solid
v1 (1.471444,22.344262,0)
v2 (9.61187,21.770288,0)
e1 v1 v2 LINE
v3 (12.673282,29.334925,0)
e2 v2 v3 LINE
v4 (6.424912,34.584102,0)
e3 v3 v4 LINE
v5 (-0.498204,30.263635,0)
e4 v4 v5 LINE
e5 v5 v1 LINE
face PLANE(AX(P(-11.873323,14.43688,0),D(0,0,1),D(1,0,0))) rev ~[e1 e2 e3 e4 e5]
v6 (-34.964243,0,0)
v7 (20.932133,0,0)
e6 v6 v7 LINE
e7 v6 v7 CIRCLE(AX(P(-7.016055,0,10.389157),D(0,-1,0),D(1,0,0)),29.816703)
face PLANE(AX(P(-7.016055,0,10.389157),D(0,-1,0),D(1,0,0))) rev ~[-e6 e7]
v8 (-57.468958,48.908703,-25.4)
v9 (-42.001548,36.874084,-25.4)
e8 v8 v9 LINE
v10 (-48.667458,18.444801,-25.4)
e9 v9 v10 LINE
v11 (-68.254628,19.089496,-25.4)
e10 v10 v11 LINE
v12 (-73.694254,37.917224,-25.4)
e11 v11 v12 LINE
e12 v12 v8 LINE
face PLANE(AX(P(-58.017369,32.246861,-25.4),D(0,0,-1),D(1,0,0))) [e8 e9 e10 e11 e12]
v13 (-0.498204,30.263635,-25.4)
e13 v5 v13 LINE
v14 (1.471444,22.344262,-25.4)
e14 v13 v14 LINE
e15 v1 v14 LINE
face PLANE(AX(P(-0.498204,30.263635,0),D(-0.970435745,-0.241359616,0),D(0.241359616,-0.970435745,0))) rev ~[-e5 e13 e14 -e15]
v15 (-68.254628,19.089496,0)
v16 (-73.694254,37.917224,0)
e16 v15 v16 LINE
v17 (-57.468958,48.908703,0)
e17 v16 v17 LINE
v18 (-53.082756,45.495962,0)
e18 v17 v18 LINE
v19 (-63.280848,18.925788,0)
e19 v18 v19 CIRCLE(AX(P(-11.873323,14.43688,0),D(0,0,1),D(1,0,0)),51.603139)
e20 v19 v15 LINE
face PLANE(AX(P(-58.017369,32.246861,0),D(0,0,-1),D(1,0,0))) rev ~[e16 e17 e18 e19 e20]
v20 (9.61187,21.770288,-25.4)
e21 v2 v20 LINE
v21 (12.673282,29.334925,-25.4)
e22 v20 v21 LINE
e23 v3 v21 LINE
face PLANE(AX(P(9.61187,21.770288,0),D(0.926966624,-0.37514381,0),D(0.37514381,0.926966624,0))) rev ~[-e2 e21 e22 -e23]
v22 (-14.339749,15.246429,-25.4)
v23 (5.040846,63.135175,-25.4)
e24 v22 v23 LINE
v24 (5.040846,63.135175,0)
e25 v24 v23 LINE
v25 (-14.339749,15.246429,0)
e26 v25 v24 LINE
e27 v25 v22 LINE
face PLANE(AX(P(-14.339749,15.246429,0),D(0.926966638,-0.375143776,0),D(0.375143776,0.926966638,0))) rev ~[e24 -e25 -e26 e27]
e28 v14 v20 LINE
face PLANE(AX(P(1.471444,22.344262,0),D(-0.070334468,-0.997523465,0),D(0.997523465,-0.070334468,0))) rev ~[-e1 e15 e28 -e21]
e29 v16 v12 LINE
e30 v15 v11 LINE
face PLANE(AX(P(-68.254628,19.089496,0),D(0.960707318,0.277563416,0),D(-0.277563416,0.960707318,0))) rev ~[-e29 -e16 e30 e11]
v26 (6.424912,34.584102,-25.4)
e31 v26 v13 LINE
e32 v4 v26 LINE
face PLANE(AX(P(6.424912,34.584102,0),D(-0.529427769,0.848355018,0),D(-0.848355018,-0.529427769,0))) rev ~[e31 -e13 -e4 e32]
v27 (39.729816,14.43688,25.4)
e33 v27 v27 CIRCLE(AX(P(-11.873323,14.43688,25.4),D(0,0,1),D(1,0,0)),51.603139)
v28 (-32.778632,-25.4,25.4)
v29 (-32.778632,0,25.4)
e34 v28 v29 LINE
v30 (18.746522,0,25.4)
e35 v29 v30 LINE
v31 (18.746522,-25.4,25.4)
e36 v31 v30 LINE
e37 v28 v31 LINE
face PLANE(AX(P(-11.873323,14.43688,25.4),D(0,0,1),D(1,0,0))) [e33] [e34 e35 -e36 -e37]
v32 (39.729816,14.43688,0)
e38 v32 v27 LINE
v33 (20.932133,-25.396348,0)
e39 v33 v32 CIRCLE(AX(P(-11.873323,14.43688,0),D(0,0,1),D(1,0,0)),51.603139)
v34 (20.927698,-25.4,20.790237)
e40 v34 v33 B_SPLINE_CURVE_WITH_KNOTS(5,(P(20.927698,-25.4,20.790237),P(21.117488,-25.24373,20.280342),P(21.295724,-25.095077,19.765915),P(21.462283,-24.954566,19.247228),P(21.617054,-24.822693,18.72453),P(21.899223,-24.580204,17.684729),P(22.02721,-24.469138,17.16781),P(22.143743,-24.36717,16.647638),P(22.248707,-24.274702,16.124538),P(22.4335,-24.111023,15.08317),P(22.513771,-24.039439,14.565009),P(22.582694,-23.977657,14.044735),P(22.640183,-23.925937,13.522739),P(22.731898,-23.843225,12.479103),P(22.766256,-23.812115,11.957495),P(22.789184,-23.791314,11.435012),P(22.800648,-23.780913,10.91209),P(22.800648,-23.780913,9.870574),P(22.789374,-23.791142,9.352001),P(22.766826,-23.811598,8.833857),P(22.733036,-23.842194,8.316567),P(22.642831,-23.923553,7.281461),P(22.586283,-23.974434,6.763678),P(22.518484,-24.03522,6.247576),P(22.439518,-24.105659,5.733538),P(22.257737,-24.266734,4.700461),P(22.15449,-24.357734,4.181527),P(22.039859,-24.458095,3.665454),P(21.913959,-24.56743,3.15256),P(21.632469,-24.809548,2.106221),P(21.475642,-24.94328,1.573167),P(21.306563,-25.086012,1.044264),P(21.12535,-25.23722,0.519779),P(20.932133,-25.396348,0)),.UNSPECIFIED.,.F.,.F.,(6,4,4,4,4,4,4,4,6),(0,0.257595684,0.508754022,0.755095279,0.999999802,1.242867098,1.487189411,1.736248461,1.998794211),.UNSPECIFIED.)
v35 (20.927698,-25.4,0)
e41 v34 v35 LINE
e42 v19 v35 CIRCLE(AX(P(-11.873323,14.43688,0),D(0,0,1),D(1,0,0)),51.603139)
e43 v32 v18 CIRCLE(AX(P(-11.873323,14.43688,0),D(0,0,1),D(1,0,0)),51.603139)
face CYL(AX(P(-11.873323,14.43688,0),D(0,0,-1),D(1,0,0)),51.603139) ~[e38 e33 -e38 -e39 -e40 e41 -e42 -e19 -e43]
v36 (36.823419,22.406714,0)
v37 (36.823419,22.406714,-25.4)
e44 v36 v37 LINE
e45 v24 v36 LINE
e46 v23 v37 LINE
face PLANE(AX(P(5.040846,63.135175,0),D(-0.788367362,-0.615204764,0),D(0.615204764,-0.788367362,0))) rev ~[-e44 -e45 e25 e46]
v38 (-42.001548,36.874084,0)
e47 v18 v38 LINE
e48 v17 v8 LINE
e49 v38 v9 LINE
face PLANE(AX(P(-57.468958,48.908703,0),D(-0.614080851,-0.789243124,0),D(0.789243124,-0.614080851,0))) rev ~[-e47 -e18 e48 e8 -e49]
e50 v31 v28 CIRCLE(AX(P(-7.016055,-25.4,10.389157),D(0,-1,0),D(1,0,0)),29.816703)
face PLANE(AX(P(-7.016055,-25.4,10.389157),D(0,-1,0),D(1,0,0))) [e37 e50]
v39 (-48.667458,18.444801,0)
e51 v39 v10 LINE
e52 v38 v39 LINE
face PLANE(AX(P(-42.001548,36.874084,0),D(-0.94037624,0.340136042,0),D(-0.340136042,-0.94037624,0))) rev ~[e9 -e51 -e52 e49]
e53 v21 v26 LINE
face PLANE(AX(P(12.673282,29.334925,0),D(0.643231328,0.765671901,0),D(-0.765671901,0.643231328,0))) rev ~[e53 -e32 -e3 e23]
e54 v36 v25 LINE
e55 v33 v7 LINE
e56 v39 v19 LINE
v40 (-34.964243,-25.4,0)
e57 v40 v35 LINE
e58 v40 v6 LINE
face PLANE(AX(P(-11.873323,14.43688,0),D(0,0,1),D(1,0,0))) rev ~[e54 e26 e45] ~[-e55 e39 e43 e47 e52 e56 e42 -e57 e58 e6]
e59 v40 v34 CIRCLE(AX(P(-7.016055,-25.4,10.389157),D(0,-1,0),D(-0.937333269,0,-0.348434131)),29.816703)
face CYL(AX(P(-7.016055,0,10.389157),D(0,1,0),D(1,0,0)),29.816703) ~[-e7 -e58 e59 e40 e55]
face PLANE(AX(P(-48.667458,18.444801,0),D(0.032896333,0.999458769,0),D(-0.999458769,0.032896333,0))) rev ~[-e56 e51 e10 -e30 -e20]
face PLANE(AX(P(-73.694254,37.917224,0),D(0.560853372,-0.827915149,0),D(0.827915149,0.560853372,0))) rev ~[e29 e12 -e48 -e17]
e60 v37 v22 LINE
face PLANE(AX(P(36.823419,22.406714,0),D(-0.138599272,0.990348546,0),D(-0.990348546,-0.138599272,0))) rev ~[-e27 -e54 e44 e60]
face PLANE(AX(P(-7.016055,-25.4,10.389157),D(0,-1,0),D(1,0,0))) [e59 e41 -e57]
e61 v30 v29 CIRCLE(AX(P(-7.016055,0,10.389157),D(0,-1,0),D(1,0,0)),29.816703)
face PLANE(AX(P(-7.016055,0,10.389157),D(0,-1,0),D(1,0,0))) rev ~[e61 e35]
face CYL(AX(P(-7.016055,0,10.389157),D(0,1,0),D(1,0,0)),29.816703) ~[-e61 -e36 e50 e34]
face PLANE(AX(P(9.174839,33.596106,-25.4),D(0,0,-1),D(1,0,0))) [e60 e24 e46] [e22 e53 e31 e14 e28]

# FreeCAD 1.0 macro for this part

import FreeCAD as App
import Part
import Sketcher
Q = App.Units.Quantity


def add_polygon(sketch, points):
    """Adds a closed chain of lines whose ends are joined by coincident constraints."""
    first, n = sketch.GeometryCount, len(points)
    for a, b in zip(points, points[1:] + points[:1]):
        sketch.addGeometry(Part.LineSegment(App.Vector(*a, 0), App.Vector(*b, 0)), False)
    for i in range(n):
        sketch.addConstraint(Sketcher.Constraint("Coincident", first + i, 2, first + (i + 1) % n, 1))

doc = App.newDocument("Part")
body = doc.addObject("PartDesign::Body", "Body")

sketch1 = body.newObject("Sketcher::SketchObject", "Sketch")
sketch1.AttachmentSupport = (doc.getObject("XY_Plane"), [""])
sketch1.MapMode = "FlatFace"
sketch1.addGeometry(Part.Circle(App.Vector(-12, 14, 0), App.Vector(0, 0, 1), 52), False)
sketch1.addConstraint([
    Sketcher.Constraint("Diameter", 0, Q("103.206278 mm")),
    Sketcher.Constraint("DistanceY", -1, 1, 0, 3, Q("14.43688 mm")),
    Sketcher.Constraint("DistanceX", 0, 3, -1, 1, Q("11.873323 mm")),
])
pad1 = body.newObject("PartDesign::Pad", "Pad")
pad1.Profile = sketch1
pad1.Length = Q("1 in")

sketch2 = body.newObject("Sketcher::SketchObject", "Sketch001")
sketch2.AttachmentSupport = (doc.getObject("XZ_Plane"), [""])
sketch2.MapMode = "FlatFace"
sketch2.addGeometry(Part.Circle(App.Vector(-7, 10, 0), App.Vector(0, 0, 1), 30), False)
sketch2.addConstraint([
    Sketcher.Constraint("Diameter", 0, Q("59.633406 mm")),
    Sketcher.Constraint("DistanceX", 0, 3, -1, 1, Q("7.016055 mm")),
    Sketcher.Constraint("DistanceY", -1, 1, 0, 3, Q("10.389157 mm")),
])
pad2 = body.newObject("PartDesign::Pad", "Pad001")
pad2.Profile = sketch2
pad2.Length = Q("1 in")

sketch3 = body.newObject("Sketcher::SketchObject", "Sketch002")
sketch3.AttachmentSupport = (doc.getObject("XY_Plane"), [""])
sketch3.MapMode = "FlatFace"
add_polygon(sketch3, [(-42, 37), (-49, 18), (-68, 19), (-74, 38), (-57, 49)])
add_polygon(sketch3, [(5, 63), (37, 22), (-14, 15)])
add_polygon(sketch3, [(0, 30), (1, 22), (10, 22), (13, 29), (6, 35)])
sketch3.addConstraint([
    Sketcher.Constraint("Parallel", 7, 10),
    Sketcher.Constraint("Equal", 0, 1),
    Sketcher.Constraint("Equal", 1, 2),
    Sketcher.Constraint("Equal", 2, 3),
    Sketcher.Constraint("Equal", 3, 4),
    Sketcher.Constraint("Equal", 5, 6),
    Sketcher.Constraint("Equal", 6, 7),
    Sketcher.Constraint("Equal", 8, 9),
    Sketcher.Constraint("Equal", 9, 10),
    Sketcher.Constraint("Equal", 10, 11),
    Sketcher.Constraint("Equal", 11, 12),
    Sketcher.Constraint("DistanceX", 0, 2, 7, 2, Q("2.1145002 in")),
    Sketcher.Constraint("DistanceY", -1, 1, 0, 2, Q("18.444801 mm")),
    Sketcher.Constraint("DistanceX", 3, 2, 0, 2, Q("8.8015 mm")),
    Sketcher.Constraint("DistanceX", 4, 2, 6, 2, Q("27.661799 mm")),
    Sketcher.Constraint("Distance", 5, Q("51.66178 mm")),
    Sketcher.Constraint("DistanceX", 0, 2, -1, 1, Q("48.667458 mm")),
    Sketcher.Constraint("DistanceX", -1, 1, 5, 2, Q("36.823419 mm")),
    Sketcher.Constraint("DistanceY", -1, 1, 6, 2, Q("15.246429 mm")),
    Sketcher.Constraint("DistanceX", -1, 1, 9, 2, Q("9.61187 mm")),
    Sketcher.Constraint("DistanceY", -1, 1, 9, 2, Q("21.770288 mm")),
    Sketcher.Constraint("DistanceX", 1, 2, 0, 2, Q("19.58717 mm")),
    Sketcher.Constraint("DistanceY", 2, 2, 3, 2, Q("10.991479 mm")),
    Sketcher.Constraint("DistanceX", 4, 2, 8, 2, Q("43.472992 mm")),
    Sketcher.Constraint("DistanceY", 0, 2, 8, 2, Q("3.899461 mm")),
    Sketcher.Constraint("DistanceX", 11, 2, 10, 2, Q("6.24837 mm")),
])
pad3 = body.newObject("PartDesign::Pad", "Pad002")
pad3.Profile = sketch3
pad3.Length = Q("1 in")
pad3.Reversed = True

doc.recompute()
